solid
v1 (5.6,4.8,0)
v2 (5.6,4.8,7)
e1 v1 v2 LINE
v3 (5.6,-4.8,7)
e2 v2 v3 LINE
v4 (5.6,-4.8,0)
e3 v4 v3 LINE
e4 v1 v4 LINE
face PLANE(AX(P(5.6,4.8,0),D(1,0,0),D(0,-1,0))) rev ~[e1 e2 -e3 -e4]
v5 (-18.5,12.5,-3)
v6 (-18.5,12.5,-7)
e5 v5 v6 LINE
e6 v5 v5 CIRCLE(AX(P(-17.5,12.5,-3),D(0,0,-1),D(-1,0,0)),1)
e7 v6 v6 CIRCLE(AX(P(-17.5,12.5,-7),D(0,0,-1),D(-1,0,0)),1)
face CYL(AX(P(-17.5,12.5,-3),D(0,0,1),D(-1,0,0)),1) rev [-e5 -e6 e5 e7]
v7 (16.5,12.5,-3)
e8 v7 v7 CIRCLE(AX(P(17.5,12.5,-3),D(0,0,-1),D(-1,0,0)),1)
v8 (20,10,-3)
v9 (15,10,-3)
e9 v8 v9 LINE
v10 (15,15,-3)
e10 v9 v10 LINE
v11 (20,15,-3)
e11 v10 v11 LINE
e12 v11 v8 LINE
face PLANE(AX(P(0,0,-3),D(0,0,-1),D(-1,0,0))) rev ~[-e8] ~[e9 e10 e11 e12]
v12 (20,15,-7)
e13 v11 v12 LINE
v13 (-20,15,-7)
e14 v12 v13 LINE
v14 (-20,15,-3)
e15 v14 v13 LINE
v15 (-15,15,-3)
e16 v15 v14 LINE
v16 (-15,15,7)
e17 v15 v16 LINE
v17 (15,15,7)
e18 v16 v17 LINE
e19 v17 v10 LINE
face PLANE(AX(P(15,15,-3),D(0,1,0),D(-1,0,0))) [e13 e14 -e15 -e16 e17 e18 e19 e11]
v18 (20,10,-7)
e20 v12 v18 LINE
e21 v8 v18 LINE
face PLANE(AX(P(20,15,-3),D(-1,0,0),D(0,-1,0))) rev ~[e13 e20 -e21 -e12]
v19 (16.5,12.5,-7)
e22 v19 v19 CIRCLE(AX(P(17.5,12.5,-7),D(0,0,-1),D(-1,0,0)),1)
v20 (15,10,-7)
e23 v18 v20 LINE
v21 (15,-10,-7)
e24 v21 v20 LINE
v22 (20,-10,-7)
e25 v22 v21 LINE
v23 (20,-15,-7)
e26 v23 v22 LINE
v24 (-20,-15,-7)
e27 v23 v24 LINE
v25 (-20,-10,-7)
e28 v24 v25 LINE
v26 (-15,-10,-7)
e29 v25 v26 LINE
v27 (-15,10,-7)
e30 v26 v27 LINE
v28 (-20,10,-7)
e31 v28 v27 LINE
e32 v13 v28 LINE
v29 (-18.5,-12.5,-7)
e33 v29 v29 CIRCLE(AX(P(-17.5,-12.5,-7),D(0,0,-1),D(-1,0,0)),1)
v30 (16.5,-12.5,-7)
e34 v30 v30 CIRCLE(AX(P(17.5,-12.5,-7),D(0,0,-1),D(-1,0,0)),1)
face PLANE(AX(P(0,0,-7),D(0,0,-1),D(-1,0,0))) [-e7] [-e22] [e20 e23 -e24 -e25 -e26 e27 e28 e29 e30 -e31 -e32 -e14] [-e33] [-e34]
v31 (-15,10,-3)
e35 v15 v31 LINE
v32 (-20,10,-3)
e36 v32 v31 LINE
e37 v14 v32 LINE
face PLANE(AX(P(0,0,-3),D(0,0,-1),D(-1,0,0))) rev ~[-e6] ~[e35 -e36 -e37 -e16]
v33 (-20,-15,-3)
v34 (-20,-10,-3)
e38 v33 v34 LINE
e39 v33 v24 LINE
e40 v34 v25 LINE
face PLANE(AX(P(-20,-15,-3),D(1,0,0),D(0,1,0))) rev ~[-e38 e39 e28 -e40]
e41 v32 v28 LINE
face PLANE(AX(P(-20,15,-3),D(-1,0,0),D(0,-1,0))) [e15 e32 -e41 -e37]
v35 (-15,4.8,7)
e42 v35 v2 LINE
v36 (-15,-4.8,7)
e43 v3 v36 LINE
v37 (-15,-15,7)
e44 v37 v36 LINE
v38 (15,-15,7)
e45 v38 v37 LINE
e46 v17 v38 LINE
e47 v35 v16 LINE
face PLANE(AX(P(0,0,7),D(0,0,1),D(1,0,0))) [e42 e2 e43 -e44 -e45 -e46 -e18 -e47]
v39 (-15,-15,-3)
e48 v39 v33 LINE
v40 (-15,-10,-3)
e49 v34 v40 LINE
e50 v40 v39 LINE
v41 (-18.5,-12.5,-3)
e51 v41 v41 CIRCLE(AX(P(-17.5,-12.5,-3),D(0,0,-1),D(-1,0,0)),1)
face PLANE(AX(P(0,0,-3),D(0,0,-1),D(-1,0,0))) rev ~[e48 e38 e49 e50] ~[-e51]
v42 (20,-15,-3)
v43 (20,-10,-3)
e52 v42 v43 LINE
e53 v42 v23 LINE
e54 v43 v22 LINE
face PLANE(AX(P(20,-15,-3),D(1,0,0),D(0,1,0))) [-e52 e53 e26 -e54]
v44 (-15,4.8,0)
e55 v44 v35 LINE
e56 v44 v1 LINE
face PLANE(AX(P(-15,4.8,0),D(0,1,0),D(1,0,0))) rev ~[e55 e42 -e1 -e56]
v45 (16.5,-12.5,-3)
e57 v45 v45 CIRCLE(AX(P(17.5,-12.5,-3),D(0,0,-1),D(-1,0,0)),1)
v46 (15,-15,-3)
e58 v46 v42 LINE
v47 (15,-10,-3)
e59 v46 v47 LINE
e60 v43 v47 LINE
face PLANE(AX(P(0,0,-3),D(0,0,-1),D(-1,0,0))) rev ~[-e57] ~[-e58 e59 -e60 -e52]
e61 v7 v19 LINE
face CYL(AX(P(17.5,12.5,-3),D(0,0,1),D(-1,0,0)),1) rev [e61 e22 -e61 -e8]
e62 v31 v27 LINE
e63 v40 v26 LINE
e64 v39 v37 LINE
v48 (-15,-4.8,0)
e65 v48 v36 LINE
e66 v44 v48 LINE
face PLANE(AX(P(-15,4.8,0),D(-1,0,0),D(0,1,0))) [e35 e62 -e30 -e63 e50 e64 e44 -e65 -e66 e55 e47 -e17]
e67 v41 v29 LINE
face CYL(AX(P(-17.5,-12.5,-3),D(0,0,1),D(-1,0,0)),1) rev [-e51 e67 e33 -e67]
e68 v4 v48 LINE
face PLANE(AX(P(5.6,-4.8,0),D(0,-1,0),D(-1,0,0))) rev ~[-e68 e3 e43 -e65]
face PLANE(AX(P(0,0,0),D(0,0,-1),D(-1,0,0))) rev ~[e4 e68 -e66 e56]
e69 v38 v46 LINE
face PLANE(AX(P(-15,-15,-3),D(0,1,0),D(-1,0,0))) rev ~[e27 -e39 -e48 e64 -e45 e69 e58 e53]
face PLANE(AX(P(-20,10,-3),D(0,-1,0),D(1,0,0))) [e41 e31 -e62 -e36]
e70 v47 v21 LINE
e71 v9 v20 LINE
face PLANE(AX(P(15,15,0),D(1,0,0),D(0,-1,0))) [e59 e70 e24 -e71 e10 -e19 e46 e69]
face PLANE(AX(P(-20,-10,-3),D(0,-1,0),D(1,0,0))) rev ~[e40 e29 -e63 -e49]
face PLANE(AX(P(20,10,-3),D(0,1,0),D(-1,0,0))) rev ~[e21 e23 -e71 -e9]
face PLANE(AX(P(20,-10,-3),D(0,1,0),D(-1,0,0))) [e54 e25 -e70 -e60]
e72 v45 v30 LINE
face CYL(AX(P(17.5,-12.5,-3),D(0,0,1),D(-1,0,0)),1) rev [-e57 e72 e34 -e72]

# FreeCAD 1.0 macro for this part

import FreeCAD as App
import Part
import Sketcher
from FreeCAD import Vector
Q = App.Units.Quantity

doc = App.newDocument("Part")
body = doc.addObject("PartDesign::Body", "Body")

sketch1 = body.newObject("Sketcher::SketchObject", "Sketch")
sketch1.AttachmentSupport = (doc.getObject("XY_Plane"), [""])
sketch1.MapMode = "FlatFace"
sketch1.addGeometry(Part.LineSegment(Vector(15, 15, 0), Vector(-15, 15, 0)), False)
sketch1.addGeometry(Part.LineSegment(Vector(-15, 15, 0), Vector(-15, 4.8, 0)), False)
sketch1.addGeometry(Part.LineSegment(Vector(-15, 4.8, 0), Vector(5.6, 4.8, 0)), False)
sketch1.addGeometry(Part.LineSegment(Vector(5.6, 4.8, 0), Vector(5.6, -4.8, 0)), False)
sketch1.addGeometry(Part.LineSegment(Vector(5.6, -4.8, 0), Vector(-15, -4.8, 0)), False)
sketch1.addGeometry(Part.LineSegment(Vector(-15, -4.8, 0), Vector(-15, -15, 0)), False)
sketch1.addGeometry(Part.LineSegment(Vector(-15, -15, 0), Vector(15, -15, 0)), False)
sketch1.addGeometry(Part.LineSegment(Vector(15, -15, 0), Vector(15, 15, 0)), False)
sketch1.addConstraint(Sketcher.Constraint("Coincident", 0, 2, 1, 1))
sketch1.addConstraint(Sketcher.Constraint("Coincident", 1, 2, 2, 1))
sketch1.addConstraint(Sketcher.Constraint("Coincident", 2, 2, 3, 1))
sketch1.addConstraint(Sketcher.Constraint("Coincident", 3, 2, 4, 1))
sketch1.addConstraint(Sketcher.Constraint("Coincident", 4, 2, 5, 1))
sketch1.addConstraint(Sketcher.Constraint("Coincident", 5, 2, 6, 1))
sketch1.addConstraint(Sketcher.Constraint("Coincident", 6, 2, 7, 1))
sketch1.addConstraint(Sketcher.Constraint("Coincident", 7, 2, 0, 1))
sketch1.addConstraint(Sketcher.Constraint("Horizontal", 0))
sketch1.addConstraint(Sketcher.Constraint("Vertical", 1))
sketch1.addConstraint(Sketcher.Constraint("Horizontal", 2))
sketch1.addConstraint(Sketcher.Constraint("Vertical", 3))
sketch1.addConstraint(Sketcher.Constraint("Horizontal", 4))
sketch1.addConstraint(Sketcher.Constraint("Vertical", 5))
sketch1.addConstraint(Sketcher.Constraint("Horizontal", 6))
sketch1.addConstraint(Sketcher.Constraint("Vertical", 7))
sketch1.addConstraint(Sketcher.Constraint("Symmetric", 0, 2, 6, 2, -1, 1))
sketch1.addConstraint(Sketcher.Constraint("Symmetric", 1, 2, 4, 2, -1))
sketch1.addConstraint(Sketcher.Constraint("Equal", 6, 7))
sketch1.addConstraint(Sketcher.Constraint("DistanceX", 0, 2, 0, 1, Q("30 mm")))
sketch1.addConstraint(Sketcher.Constraint("DistanceY", 3, 2, 3, 1, Q("9.6 mm")))
sketch1.addConstraint(Sketcher.Constraint("DistanceX", -1, 1, 2, 2, Q("5.6 mm")))
pad1 = body.newObject("PartDesign::Pad", "Pad")
pad1.Profile = sketch1
pad1.Length = 7

sketch2 = body.newObject("Sketcher::SketchObject", "Sketch001")
sketch2.AttachmentSupport = (doc.getObject("XY_Plane"), [""])
sketch2.MapMode = "FlatFace"
sketch2.addGeometry(Part.LineSegment(Vector(15, -15, 0), Vector(-15, -15, 0)), False)
sketch2.addGeometry(Part.LineSegment(Vector(-15, -15, 0), Vector(-15, 15, 0)), False)
sketch2.addGeometry(Part.LineSegment(Vector(-15, 15, 0), Vector(15, 15, 0)), False)
sketch2.addGeometry(Part.LineSegment(Vector(15, 15, 0), Vector(15, -15, 0)), False)
sketch2.addConstraint(Sketcher.Constraint("Coincident", 0, 2, 1, 1))
sketch2.addConstraint(Sketcher.Constraint("Coincident", 1, 2, 2, 1))
sketch2.addConstraint(Sketcher.Constraint("Coincident", 2, 2, 3, 1))
sketch2.addConstraint(Sketcher.Constraint("Coincident", 3, 2, 0, 1))
sketch2.addConstraint(Sketcher.Constraint("Horizontal", 0))
sketch2.addConstraint(Sketcher.Constraint("Vertical", 1))
sketch2.addConstraint(Sketcher.Constraint("Horizontal", 2))
sketch2.addConstraint(Sketcher.Constraint("Vertical", 3))
sketch2.addConstraint(Sketcher.Constraint("Symmetric", 0, 2, 2, 2, -1, 1))
sketch2.addConstraint(Sketcher.Constraint("Equal", 2, 1))
sketch2.addConstraint(Sketcher.Constraint("DistanceX", 0, 2, 0, 1, Q("30 mm")))
pad2 = body.newObject("PartDesign::Pad", "Pad001")
pad2.Profile = sketch2
pad2.Length = 3
pad2.Reversed = True

sketch3 = body.newObject("Sketcher::SketchObject", "Sketch002")
sketch3.AttachmentSupport = (doc.getObject("XY_Plane"), [""])
sketch3.MapMode = "FlatFace"
sketch3.AttachmentOffset = App.Placement(Vector(0, 0, -3), App.Rotation())
sketch3.addGeometry(Part.LineSegment(Vector(-20, 15, 0), Vector(20, 15, 0)), False)
sketch3.addGeometry(Part.LineSegment(Vector(20, 15, 0), Vector(20, 10, 0)), False)
sketch3.addGeometry(Part.LineSegment(Vector(20, 10, 0), Vector(15, 10, 0)), False)
sketch3.addGeometry(Part.LineSegment(Vector(15, 10, 0), Vector(15, -10, 0)), False)
sketch3.addGeometry(Part.LineSegment(Vector(15, -10, 0), Vector(20, -10, 0)), False)
sketch3.addGeometry(Part.LineSegment(Vector(20, -10, 0), Vector(20, -15, 0)), False)
sketch3.addGeometry(Part.LineSegment(Vector(20, -15, 0), Vector(-20, -15, 0)), False)
sketch3.addGeometry(Part.LineSegment(Vector(-20, -15, 0), Vector(-20, -10, 0)), False)
sketch3.addGeometry(Part.LineSegment(Vector(-20, -10, 0), Vector(-15, -10, 0)), False)
sketch3.addGeometry(Part.LineSegment(Vector(-15, -10, 0), Vector(-15, 10, 0)), False)
sketch3.addGeometry(Part.LineSegment(Vector(-15, 10, 0), Vector(-20, 10, 0)), False)
sketch3.addGeometry(Part.LineSegment(Vector(-20, 10, 0), Vector(-20, 15, 0)), False)
sketch3.addGeometry(Part.Circle(Vector(17.5, -12.5, 0), Vector(0, 0, 1), 1), False)
sketch3.addGeometry(Part.Circle(Vector(-17.5, -12.5, 0), Vector(0, 0, 1), 1), False)
sketch3.addGeometry(Part.Circle(Vector(17.5, 12.5, 0), Vector(0, 0, 1), 1), False)
sketch3.addGeometry(Part.Circle(Vector(-17.5, 12.5, 0), Vector(0, 0, 1), 1), False)
sketch3.addConstraint(Sketcher.Constraint("Coincident", 0, 2, 1, 1))
sketch3.addConstraint(Sketcher.Constraint("Coincident", 1, 2, 2, 1))
sketch3.addConstraint(Sketcher.Constraint("Coincident", 2, 2, 3, 1))
sketch3.addConstraint(Sketcher.Constraint("Coincident", 3, 2, 4, 1))
sketch3.addConstraint(Sketcher.Constraint("Coincident", 4, 2, 5, 1))
sketch3.addConstraint(Sketcher.Constraint("Coincident", 5, 2, 6, 1))
sketch3.addConstraint(Sketcher.Constraint("Coincident", 6, 2, 7, 1))
sketch3.addConstraint(Sketcher.Constraint("Coincident", 7, 2, 8, 1))
sketch3.addConstraint(Sketcher.Constraint("Coincident", 8, 2, 9, 1))
sketch3.addConstraint(Sketcher.Constraint("Coincident", 9, 2, 10, 1))
sketch3.addConstraint(Sketcher.Constraint("Coincident", 10, 2, 11, 1))
sketch3.addConstraint(Sketcher.Constraint("Coincident", 11, 2, 0, 1))
sketch3.addConstraint(Sketcher.Constraint("Horizontal", 0))
sketch3.addConstraint(Sketcher.Constraint("Vertical", 1))
sketch3.addConstraint(Sketcher.Constraint("Horizontal", 2))
sketch3.addConstraint(Sketcher.Constraint("Vertical", 3))
sketch3.addConstraint(Sketcher.Constraint("Horizontal", 4))
sketch3.addConstraint(Sketcher.Constraint("Vertical", 5))
sketch3.addConstraint(Sketcher.Constraint("Horizontal", 6))
sketch3.addConstraint(Sketcher.Constraint("Vertical", 7))
sketch3.addConstraint(Sketcher.Constraint("Horizontal", 8))
sketch3.addConstraint(Sketcher.Constraint("Vertical", 9))
sketch3.addConstraint(Sketcher.Constraint("Horizontal", 10))
sketch3.addConstraint(Sketcher.Constraint("Vertical", 11))
sketch3.addConstraint(Sketcher.Constraint("Equal", 12, 13))
sketch3.addConstraint(Sketcher.Constraint("Equal", 13, 14))
sketch3.addConstraint(Sketcher.Constraint("Equal", 14, 15))
sketch3.addConstraint(Sketcher.Constraint("Symmetric", 13, 3, 14, 3, -1, 1))
sketch3.addConstraint(Sketcher.Constraint("Symmetric", 12, 3, 15, 3, -1, 1))
sketch3.addConstraint(Sketcher.Constraint("Symmetric", 0, 2, 6, 2, -1, 1))
sketch3.addConstraint(Sketcher.Constraint("Symmetric", 2, 2, 8, 2, -1, 1))
sketch3.addConstraint(Sketcher.Constraint("Symmetric", 4, 2, 10, 2, -1, 1))
sketch3.addConstraint(Sketcher.Constraint("Symmetric", 12, 3, 13, 3, -2))
sketch3.addConstraint(Sketcher.Constraint("Symmetric", 4, 2, 7, 2, -2))
sketch3.addConstraint(Sketcher.Constraint("Equal", 10, 1))
sketch3.addConstraint(Sketcher.Constraint("Diameter", 12, Q("2 mm")))
sketch3.addConstraint(Sketcher.Constraint("DistanceX", 2, 2, 2, 1, Q("5 mm")))
sketch3.addConstraint(Sketcher.Constraint("DistanceX", 14, 3, 0, 2, Q("2.5 mm")))
sketch3.addConstraint(Sketcher.Constraint("DistanceY", 14, 3, 0, 2, Q("2.5 mm")))
sketch3.addConstraint(Sketcher.Constraint("DistanceX", 0, 1, 0, 2, Q("40 mm")))
sketch3.addConstraint(Sketcher.Constraint("DistanceY", 3, 2, 3, 1, Q("20 mm")))
pad3 = body.newObject("PartDesign::Pad", "Pad002")
pad3.Profile = sketch3
pad3.Length = 4
pad3.Reversed = True

doc.recompute()
